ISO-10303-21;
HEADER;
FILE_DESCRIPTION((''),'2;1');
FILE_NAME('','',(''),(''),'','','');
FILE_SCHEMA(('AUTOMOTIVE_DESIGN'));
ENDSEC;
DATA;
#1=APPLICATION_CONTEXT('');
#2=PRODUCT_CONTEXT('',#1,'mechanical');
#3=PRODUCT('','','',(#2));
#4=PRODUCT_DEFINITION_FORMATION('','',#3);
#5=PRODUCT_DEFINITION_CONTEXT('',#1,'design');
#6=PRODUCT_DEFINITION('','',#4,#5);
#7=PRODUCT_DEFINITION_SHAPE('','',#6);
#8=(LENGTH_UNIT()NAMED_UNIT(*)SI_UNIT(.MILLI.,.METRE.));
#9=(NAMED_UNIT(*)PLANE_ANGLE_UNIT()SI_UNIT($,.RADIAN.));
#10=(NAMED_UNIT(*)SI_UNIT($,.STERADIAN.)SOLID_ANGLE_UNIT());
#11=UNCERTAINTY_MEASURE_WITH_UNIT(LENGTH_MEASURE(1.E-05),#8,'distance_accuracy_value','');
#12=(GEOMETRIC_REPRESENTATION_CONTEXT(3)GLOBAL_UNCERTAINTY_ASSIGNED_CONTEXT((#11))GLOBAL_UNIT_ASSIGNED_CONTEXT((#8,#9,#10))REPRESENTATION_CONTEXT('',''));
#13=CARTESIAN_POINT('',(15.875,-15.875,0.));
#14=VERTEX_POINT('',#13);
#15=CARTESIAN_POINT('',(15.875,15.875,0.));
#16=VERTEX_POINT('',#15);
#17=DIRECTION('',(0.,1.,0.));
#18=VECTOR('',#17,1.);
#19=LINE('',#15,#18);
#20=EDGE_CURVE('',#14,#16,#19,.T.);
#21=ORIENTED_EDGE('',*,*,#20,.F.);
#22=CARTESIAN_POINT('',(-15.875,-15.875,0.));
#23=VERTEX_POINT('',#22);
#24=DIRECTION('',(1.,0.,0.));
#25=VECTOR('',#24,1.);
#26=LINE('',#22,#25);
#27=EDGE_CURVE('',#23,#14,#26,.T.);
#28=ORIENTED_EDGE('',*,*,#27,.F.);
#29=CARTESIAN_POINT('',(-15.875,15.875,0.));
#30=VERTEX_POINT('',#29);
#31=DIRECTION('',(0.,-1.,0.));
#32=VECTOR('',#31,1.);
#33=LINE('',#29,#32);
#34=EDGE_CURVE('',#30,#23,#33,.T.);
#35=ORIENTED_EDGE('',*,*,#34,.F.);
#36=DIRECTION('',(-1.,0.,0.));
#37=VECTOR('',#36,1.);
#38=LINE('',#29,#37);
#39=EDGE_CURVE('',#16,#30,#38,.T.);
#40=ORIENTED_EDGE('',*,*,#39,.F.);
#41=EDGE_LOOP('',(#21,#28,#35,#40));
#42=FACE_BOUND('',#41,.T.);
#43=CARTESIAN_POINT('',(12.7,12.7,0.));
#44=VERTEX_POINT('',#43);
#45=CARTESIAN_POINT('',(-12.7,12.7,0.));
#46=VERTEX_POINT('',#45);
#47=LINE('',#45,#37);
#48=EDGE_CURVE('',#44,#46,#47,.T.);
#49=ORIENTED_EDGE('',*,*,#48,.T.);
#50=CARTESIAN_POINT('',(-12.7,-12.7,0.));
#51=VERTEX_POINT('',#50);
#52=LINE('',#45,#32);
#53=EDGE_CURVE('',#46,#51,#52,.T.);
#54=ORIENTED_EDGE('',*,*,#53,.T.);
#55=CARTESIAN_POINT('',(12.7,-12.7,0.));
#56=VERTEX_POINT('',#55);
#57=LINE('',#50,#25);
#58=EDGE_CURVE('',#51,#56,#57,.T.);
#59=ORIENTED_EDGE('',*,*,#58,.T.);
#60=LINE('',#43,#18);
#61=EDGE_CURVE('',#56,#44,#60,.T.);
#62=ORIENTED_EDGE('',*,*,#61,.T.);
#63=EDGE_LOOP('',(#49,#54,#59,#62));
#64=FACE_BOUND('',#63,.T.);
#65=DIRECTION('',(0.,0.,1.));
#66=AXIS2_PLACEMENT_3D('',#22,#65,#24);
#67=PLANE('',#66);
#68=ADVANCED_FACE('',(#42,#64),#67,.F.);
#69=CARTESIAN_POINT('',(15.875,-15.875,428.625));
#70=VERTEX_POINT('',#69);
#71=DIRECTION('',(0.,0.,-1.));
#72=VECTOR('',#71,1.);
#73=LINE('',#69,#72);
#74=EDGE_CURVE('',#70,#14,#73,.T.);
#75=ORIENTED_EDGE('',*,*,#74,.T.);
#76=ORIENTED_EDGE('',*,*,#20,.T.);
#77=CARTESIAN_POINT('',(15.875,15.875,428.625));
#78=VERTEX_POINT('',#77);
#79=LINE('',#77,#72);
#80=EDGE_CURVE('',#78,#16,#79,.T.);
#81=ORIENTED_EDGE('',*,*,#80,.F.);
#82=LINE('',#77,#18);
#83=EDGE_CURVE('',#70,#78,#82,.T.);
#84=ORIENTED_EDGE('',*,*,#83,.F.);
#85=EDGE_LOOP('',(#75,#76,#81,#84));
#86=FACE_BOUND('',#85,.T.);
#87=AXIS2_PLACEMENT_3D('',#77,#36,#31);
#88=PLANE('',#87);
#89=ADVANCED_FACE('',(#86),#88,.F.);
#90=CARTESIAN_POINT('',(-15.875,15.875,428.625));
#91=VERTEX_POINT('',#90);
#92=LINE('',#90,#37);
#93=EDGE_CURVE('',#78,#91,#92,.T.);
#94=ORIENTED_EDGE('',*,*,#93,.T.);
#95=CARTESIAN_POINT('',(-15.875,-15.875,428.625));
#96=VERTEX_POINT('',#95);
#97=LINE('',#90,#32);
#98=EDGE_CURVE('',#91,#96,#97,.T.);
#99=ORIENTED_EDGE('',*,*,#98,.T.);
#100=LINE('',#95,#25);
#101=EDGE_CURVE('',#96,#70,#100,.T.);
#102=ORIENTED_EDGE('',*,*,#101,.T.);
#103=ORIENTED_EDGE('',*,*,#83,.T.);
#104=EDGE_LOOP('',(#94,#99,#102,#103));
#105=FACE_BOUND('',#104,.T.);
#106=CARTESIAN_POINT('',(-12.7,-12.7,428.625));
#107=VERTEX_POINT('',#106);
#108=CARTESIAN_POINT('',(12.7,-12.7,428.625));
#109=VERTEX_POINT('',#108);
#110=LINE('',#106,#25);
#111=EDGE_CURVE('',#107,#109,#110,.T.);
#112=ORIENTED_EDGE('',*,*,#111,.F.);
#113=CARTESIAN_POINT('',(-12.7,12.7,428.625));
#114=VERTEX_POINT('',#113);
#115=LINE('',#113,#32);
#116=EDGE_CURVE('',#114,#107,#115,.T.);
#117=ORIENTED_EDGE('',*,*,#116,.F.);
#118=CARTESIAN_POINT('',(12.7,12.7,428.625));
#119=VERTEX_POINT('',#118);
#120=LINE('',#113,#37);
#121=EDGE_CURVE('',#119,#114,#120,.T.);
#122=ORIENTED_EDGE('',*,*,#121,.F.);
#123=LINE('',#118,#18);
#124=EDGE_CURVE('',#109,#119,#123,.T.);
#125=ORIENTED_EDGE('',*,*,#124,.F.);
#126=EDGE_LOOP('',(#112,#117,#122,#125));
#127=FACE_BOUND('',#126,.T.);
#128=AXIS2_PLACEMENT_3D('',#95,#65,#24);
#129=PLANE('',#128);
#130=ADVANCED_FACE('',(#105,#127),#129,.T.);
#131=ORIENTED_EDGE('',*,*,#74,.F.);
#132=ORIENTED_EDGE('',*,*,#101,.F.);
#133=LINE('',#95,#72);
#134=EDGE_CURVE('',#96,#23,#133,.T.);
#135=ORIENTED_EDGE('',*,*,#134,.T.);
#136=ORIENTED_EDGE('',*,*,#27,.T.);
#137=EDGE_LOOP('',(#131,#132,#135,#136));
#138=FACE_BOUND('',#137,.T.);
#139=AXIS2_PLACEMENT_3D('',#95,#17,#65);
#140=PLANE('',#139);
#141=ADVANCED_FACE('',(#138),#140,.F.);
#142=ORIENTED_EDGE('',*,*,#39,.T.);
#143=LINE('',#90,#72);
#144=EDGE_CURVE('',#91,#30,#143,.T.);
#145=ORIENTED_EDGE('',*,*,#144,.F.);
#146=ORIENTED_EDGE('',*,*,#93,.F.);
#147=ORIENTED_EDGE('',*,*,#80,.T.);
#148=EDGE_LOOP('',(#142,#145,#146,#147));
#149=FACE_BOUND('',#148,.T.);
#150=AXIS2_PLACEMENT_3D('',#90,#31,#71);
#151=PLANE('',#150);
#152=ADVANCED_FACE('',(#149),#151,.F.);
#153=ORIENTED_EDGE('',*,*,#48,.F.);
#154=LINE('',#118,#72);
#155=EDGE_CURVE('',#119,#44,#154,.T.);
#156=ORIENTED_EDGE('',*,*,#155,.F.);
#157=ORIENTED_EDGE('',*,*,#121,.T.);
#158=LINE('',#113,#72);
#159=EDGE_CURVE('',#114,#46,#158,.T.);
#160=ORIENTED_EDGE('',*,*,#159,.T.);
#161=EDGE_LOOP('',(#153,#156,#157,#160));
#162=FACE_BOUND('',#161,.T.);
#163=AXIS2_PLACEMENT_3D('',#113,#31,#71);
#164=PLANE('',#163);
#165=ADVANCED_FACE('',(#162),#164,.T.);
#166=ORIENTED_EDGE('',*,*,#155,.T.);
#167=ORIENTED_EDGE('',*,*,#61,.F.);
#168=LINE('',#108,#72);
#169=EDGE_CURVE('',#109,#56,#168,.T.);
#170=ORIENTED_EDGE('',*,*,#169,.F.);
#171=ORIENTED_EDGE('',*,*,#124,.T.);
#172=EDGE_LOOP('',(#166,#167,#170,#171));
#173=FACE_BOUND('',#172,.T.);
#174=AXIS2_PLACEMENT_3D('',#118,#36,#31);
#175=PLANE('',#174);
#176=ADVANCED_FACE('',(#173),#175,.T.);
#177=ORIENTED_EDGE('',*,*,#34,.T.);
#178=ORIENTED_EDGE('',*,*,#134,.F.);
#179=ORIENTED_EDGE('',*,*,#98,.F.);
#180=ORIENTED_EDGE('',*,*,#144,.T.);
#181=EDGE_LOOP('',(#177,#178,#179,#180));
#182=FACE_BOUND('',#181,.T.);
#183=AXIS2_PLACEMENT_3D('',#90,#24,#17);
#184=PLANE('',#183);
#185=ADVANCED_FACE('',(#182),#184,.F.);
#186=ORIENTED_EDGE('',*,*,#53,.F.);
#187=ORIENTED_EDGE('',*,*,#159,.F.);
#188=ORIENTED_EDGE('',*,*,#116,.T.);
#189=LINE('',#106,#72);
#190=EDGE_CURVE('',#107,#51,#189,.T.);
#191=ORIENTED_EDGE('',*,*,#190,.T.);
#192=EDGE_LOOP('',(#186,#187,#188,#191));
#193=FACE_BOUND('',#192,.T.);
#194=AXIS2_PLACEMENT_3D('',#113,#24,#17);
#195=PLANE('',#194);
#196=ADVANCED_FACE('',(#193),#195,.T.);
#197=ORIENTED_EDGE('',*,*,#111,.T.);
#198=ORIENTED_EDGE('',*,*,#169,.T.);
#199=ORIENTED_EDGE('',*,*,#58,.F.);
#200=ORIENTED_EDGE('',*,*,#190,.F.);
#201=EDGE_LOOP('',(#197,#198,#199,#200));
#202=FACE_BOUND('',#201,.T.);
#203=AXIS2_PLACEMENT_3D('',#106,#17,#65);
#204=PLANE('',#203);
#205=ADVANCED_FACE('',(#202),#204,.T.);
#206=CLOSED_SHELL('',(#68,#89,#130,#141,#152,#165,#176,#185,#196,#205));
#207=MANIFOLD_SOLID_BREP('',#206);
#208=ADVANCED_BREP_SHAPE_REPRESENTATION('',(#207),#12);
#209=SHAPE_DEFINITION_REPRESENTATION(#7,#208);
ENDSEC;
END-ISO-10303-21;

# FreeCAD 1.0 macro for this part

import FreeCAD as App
import Part
import Sketcher
Q = App.Units.Quantity

doc = App.newDocument("Part")
body = doc.addObject("PartDesign::Body", "Body")

# Sketch on XY plane
sketch1 = body.newObject("Sketcher::SketchObject", "Sketch")
sketch1.AttachmentSupport = (doc.getObject("XY_Plane"), [""])
sketch1.MapMode = "FlatFace"
sketch1.addGeometry([
    Part.LineSegment(App.Vector(-16, 16, 0), App.Vector(-16, -16, 0)),  # 0
    Part.LineSegment(App.Vector(-16, -16, 0), App.Vector(16, -16, 0)),  # 1
    Part.LineSegment(App.Vector(16, -16, 0), App.Vector(16, 16, 0)),  # 2
    Part.LineSegment(App.Vector(16, 16, 0), App.Vector(-16, 16, 0)),  # 3
    Part.LineSegment(App.Vector(13, -13, 0), App.Vector(-13, -13, 0)),  # 4
    Part.LineSegment(App.Vector(-13, -13, 0), App.Vector(-13, 13, 0)),  # 5
    Part.LineSegment(App.Vector(-13, 13, 0), App.Vector(13, 13, 0)),  # 6
    Part.LineSegment(App.Vector(13, 13, 0), App.Vector(13, -13, 0)),  # 7
], False)
sketch1.addConstraint([
    Sketcher.Constraint("Coincident", 0, 2, 1, 1),
    Sketcher.Constraint("Coincident", 1, 2, 2, 1),
    Sketcher.Constraint("Coincident", 2, 2, 3, 1),
    Sketcher.Constraint("Coincident", 3, 2, 0, 1),
    Sketcher.Constraint("Coincident", 4, 2, 5, 1),
    Sketcher.Constraint("Coincident", 5, 2, 6, 1),
    Sketcher.Constraint("Coincident", 6, 2, 7, 1),
    Sketcher.Constraint("Coincident", 7, 2, 4, 1),
    Sketcher.Constraint("Vertical", 0),
    Sketcher.Constraint("Horizontal", 1),
    Sketcher.Constraint("Vertical", 2),
    Sketcher.Constraint("Horizontal", 3),
    Sketcher.Constraint("Horizontal", 4),
    Sketcher.Constraint("Vertical", 5),
    Sketcher.Constraint("Horizontal", 6),
    Sketcher.Constraint("Vertical", 7),
    Sketcher.Constraint("Symmetric", 0, 2, 2, 2, -1, 1),
    Sketcher.Constraint("Symmetric", 4, 2, 6, 2, -1, 1),
    Sketcher.Constraint("Equal", 3, 0),
    Sketcher.Constraint("Equal", 6, 5),
    Sketcher.Constraint("DistanceX", 4, 2, 4, 1, Q("1 in")),
    Sketcher.Constraint("DistanceX", 1, 1, 1, 2, Q("1.25 in")),
])
pad1 = body.newObject("PartDesign::Pad", "Pad")
pad1.Profile = sketch1
pad1.Length = Q("16.875 in")

doc.recompute()
